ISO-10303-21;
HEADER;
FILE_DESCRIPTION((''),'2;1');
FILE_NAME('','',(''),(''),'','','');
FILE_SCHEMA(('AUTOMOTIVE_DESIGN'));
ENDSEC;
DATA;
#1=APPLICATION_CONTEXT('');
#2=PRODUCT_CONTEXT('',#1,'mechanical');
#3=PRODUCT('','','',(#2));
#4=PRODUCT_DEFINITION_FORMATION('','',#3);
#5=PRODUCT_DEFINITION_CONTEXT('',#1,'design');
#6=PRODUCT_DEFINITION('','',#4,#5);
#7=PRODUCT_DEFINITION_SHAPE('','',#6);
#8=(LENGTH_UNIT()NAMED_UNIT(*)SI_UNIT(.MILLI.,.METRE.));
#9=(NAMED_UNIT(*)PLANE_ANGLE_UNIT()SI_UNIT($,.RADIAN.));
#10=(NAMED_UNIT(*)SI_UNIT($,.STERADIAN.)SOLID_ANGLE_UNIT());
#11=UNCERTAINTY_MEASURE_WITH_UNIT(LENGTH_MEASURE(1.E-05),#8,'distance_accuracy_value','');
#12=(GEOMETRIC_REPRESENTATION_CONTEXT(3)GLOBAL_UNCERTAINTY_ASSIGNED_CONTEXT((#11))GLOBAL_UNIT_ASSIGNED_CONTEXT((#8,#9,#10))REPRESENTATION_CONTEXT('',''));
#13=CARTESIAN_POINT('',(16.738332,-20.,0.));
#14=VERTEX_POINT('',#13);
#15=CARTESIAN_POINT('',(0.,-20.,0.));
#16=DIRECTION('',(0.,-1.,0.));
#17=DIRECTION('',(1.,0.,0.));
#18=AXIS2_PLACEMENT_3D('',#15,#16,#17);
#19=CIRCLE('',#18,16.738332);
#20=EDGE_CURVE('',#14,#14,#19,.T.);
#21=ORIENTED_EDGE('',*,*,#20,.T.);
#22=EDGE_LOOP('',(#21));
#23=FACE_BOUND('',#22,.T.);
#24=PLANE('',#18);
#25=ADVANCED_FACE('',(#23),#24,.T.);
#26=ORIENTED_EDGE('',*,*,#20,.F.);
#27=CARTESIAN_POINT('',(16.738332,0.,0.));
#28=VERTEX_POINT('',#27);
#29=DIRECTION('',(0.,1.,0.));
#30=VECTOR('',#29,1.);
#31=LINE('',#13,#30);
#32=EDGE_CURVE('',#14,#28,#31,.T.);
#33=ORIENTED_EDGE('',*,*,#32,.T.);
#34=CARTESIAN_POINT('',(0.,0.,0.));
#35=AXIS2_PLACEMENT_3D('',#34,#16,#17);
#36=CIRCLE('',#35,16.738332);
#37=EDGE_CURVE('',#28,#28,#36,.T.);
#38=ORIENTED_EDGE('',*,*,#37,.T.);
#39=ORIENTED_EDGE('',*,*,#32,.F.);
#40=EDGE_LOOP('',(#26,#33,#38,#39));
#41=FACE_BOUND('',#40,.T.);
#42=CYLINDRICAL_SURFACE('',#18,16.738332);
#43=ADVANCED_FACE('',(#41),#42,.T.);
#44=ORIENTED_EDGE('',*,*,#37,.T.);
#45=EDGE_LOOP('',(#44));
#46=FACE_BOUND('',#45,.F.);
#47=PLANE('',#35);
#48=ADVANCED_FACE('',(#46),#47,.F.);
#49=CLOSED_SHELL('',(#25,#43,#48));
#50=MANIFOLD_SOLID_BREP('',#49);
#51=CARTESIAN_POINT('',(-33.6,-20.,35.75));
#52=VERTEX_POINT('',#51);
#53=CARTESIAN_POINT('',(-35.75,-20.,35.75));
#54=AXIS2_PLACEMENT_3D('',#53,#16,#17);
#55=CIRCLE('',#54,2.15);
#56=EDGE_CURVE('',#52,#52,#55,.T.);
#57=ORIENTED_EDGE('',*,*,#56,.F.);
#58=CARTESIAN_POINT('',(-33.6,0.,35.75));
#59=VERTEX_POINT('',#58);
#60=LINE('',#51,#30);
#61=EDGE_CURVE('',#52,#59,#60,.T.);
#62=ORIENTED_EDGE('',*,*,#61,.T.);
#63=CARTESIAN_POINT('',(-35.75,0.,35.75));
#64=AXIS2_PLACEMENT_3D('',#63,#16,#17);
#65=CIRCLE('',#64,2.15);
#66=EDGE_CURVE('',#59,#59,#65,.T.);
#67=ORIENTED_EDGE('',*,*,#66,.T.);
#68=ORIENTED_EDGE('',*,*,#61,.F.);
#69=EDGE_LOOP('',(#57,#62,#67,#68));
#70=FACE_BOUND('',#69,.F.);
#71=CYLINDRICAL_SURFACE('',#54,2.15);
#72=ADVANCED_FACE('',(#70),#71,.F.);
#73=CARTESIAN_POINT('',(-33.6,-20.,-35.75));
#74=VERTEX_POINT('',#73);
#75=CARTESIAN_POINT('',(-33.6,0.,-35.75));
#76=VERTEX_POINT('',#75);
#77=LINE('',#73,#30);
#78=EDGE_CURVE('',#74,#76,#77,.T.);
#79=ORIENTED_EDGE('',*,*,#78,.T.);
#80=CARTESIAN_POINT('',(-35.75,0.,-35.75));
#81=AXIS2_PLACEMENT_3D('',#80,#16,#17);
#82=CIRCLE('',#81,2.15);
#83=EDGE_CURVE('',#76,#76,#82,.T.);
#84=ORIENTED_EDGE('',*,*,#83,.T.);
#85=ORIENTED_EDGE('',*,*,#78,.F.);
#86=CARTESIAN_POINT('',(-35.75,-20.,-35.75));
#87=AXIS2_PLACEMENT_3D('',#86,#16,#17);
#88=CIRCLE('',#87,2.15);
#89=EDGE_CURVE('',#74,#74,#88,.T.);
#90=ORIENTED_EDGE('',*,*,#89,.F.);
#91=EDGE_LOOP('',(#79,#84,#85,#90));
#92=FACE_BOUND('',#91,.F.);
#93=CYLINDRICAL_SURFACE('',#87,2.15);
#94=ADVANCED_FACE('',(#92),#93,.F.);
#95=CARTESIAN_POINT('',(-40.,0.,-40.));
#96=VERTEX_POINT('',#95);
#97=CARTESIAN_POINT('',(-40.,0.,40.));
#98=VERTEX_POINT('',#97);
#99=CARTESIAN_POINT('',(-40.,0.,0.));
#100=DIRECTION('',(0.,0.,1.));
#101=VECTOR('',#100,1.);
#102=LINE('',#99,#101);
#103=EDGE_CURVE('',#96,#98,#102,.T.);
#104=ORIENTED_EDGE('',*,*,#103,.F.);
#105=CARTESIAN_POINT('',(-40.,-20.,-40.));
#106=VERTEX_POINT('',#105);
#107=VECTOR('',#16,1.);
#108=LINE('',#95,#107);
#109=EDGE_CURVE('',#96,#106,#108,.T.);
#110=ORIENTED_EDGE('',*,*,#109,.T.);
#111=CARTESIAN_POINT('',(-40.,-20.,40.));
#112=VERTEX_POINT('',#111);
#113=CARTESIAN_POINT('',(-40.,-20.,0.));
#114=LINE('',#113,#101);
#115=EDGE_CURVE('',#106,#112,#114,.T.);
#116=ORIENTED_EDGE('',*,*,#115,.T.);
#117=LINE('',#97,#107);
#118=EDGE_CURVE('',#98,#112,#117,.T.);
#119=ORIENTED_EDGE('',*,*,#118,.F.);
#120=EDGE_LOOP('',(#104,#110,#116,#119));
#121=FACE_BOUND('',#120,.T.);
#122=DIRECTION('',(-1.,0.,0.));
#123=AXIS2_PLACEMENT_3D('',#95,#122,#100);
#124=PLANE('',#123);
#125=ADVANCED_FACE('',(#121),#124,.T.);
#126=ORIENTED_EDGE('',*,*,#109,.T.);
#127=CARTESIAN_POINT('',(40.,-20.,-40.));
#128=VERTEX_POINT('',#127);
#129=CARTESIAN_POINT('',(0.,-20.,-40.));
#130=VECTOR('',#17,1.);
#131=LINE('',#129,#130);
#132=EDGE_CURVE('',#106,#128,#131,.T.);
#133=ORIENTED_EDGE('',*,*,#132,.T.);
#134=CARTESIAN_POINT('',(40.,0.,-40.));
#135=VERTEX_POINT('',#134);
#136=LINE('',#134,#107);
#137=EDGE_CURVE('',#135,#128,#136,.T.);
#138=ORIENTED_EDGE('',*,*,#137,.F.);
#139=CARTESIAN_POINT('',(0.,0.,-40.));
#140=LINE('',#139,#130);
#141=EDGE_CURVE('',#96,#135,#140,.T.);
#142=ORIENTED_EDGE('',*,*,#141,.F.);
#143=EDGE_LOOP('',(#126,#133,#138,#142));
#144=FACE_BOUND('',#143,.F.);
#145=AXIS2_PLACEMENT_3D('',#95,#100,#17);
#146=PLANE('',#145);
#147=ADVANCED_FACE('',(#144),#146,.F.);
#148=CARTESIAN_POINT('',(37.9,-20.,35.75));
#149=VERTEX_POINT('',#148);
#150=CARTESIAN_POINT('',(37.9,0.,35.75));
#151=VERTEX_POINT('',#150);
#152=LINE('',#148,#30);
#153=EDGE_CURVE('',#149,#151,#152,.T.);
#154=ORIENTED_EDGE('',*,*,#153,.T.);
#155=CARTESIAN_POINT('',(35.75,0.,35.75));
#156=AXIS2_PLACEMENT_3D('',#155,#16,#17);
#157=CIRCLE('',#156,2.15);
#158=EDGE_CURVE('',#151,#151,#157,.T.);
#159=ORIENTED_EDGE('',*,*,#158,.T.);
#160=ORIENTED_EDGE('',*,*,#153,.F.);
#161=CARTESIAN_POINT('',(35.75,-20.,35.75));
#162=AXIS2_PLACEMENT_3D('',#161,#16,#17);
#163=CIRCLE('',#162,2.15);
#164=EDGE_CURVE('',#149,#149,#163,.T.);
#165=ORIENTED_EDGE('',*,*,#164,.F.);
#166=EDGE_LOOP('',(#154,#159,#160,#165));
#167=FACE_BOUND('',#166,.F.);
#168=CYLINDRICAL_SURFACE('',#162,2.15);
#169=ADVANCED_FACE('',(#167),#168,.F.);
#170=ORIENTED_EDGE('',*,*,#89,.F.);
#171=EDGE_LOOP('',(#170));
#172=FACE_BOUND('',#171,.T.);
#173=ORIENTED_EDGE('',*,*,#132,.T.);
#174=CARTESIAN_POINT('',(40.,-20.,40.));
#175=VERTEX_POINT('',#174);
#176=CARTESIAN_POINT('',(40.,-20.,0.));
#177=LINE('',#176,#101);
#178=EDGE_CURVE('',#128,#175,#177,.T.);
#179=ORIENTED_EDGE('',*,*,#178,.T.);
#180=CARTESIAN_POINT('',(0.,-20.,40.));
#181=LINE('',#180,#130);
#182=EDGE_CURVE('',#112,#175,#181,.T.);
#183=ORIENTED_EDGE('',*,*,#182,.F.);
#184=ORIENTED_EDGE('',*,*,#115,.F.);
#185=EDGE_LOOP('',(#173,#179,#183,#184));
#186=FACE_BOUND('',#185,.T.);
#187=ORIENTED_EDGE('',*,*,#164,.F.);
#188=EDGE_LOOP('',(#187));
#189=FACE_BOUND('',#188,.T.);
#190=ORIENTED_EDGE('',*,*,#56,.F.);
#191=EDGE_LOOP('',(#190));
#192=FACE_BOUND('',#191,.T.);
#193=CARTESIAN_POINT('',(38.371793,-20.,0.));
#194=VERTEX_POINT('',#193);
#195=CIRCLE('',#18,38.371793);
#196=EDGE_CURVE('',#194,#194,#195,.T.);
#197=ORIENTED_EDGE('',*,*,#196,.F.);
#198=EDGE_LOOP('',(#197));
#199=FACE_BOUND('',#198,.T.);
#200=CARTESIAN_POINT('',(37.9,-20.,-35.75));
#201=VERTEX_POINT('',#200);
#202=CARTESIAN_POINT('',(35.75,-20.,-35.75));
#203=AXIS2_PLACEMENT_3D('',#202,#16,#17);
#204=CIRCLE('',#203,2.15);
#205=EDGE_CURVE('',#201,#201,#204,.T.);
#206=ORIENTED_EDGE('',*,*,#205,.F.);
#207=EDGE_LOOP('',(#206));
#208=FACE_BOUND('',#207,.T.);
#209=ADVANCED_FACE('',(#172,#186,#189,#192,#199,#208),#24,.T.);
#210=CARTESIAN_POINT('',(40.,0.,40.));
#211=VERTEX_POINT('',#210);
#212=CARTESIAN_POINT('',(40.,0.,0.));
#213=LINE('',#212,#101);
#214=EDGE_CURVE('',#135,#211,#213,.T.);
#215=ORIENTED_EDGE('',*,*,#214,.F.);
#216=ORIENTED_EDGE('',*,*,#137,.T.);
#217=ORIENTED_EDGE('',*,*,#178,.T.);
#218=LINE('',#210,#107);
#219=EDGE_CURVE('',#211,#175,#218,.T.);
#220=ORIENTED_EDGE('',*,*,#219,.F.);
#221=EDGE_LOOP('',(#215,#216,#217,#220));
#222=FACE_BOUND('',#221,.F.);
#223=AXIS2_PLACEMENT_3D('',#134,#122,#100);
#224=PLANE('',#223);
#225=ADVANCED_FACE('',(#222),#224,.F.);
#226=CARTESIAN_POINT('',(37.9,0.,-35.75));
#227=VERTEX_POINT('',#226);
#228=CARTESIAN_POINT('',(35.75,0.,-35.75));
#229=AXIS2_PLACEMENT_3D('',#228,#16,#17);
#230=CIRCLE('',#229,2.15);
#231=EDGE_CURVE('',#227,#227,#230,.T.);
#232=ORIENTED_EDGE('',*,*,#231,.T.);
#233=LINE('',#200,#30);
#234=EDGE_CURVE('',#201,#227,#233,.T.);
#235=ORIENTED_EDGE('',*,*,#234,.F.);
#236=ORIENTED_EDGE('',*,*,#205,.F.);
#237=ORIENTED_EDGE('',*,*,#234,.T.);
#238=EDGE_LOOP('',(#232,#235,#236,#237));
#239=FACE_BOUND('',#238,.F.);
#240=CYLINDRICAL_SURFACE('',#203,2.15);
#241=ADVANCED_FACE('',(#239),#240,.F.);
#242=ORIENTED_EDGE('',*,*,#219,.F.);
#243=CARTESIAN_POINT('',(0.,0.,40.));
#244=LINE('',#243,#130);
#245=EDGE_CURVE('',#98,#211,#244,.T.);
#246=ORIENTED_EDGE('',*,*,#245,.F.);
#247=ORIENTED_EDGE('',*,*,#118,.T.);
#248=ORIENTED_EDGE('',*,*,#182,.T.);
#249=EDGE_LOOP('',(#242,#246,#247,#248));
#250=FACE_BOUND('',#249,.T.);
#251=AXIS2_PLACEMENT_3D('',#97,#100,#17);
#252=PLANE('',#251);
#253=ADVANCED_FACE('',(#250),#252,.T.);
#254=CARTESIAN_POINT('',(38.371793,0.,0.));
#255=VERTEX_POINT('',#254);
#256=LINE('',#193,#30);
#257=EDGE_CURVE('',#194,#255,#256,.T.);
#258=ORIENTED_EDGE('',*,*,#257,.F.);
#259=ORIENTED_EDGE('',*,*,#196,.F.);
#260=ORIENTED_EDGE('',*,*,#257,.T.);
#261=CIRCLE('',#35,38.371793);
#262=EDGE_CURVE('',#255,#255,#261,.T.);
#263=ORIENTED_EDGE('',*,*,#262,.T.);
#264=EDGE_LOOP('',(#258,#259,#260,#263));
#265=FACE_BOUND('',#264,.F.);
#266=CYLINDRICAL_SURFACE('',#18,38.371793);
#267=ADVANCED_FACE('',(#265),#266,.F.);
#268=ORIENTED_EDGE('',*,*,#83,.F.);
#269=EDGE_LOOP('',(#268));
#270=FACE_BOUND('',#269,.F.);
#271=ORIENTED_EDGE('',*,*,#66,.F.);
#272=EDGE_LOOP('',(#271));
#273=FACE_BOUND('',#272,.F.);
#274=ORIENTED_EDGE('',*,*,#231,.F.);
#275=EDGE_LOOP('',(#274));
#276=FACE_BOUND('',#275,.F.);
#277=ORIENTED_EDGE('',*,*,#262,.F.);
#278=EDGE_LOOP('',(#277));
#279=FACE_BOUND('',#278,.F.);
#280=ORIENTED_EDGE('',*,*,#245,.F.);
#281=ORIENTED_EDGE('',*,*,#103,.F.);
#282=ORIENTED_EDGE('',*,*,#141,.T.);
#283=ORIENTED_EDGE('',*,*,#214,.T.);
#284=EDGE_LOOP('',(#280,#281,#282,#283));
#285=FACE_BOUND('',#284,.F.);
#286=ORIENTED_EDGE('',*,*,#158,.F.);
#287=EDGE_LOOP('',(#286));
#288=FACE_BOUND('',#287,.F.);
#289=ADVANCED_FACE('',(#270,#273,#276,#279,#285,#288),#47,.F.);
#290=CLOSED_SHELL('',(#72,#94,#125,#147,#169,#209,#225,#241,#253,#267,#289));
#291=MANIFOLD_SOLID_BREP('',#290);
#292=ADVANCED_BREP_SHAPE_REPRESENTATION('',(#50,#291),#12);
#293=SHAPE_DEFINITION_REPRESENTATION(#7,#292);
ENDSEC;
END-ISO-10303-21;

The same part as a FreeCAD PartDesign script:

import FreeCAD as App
import Part
import Sketcher
Q = App.Units.Quantity

doc = App.newDocument("Part")
body = doc.addObject("PartDesign::Body", "Body")
body.AllowCompound = True

sketch1 = body.newObject("Sketcher::SketchObject", "Sketch")
sketch1.AttachmentSupport = (doc.getObject("XZ_Plane"), [""])
sketch1.MapMode = "FlatFace"
sketch1.addGeometry(Part.LineSegment(App.Vector(-40, 40, 0), App.Vector(-40, -40, 0)), False)
sketch1.addGeometry(Part.LineSegment(App.Vector(-40, -40, 0), App.Vector(40, -40, 0)), False)
sketch1.addGeometry(Part.LineSegment(App.Vector(40, -40, 0), App.Vector(40, 40, 0)), False)
sketch1.addGeometry(Part.LineSegment(App.Vector(40, 40, 0), App.Vector(-40, 40, 0)), False)
sketch1.addConstraint(Sketcher.Constraint("Coincident", 0, 2, 1, 1))
sketch1.addConstraint(Sketcher.Constraint("Coincident", 1, 2, 2, 1))
sketch1.addConstraint(Sketcher.Constraint("Coincident", 2, 2, 3, 1))
sketch1.addConstraint(Sketcher.Constraint("Coincident", 3, 2, 0, 1))
sketch1.addConstraint(Sketcher.Constraint("Vertical", 0))
sketch1.addConstraint(Sketcher.Constraint("Horizontal", 1))
sketch1.addConstraint(Sketcher.Constraint("Vertical", 2))
sketch1.addConstraint(Sketcher.Constraint("Horizontal", 3))
sketch1.addConstraint(Sketcher.Constraint("Symmetric", 0, 2, 2, 2, -1, 1))
sketch1.addConstraint(Sketcher.Constraint("Equal", 3, 0))
sketch1.addConstraint(Sketcher.Constraint("DistanceX", 1, 1, 1, 2, Q("80 mm")))
pad1 = body.newObject("PartDesign::Pad", "Pad")
pad1.Profile = sketch1
pad1.Length = 20

sketch2 = body.newObject("Sketcher::SketchObject", "Sketch001")
sketch2.AttachmentSupport = (doc.getObject("XZ_Plane"), [""])
sketch2.MapMode = "FlatFace"
sketch2.AttachmentOffset = App.Placement(App.Vector(0, 0, 20), App.Rotation())
sketch2.addGeometry(Part.Circle(App.Vector(-35.8, 35.8, 0), App.Vector(0, 0, 1), 2.1), False)
sketch2.addGeometry(Part.Circle(App.Vector(-35.8, -35.8, 0), App.Vector(0, 0, 1), 2.1), False)
sketch2.addGeometry(Part.Circle(App.Vector(35.8, 35.8, 0), App.Vector(0, 0, 1), 2.1), False)
sketch2.addGeometry(Part.Circle(App.Vector(35.8, -35.8, 0), App.Vector(0, 0, 1), 2.1), False)
sketch2.addConstraint(Sketcher.Constraint("Equal", 0, 1))
sketch2.addConstraint(Sketcher.Constraint("Equal", 1, 2))
sketch2.addConstraint(Sketcher.Constraint("Equal", 2, 3))
sketch2.addConstraint(Sketcher.Constraint("Symmetric", 1, 3, 2, 3, -1, 1))
sketch2.addConstraint(Sketcher.Constraint("Symmetric", 0, 3, 3, 3, -1, 1))
sketch2.addConstraint(Sketcher.Constraint("Symmetric", 0, 3, 2, 3, -2))
sketch2.addConstraint(Sketcher.Constraint("Diameter", 0, Q("4.3 mm")))
sketch2.addConstraint(Sketcher.Constraint("DistanceY", 1, 3, 0, 3, Q("71.5 mm")))
sketch2.addConstraint(Sketcher.Constraint("DistanceX", 0, 3, 2, 3, Q("71.5 mm")))
pocket1 = body.newObject("PartDesign::Pocket", "Pocket")
pocket1.Profile = sketch2
pocket1.Length = 25

sketch3 = body.newObject("Sketcher::SketchObject", "Sketch002")
sketch3.AttachmentSupport = (doc.getObject("XZ_Plane"), [""])
sketch3.MapMode = "FlatFace"
sketch3.AttachmentOffset = App.Placement(App.Vector(0, 0, 20), App.Rotation())
sketch3.addGeometry(Part.Circle(App.Vector(0, 0, 0), App.Vector(0, 0, 1), 38), False)
sketch3.addGeometry(Part.Circle(App.Vector(0, 0, 0), App.Vector(0, 0, 1), 17), False)
sketch3.addConstraint(Sketcher.Constraint("Coincident", 0, 3, -1, 1))
sketch3.addConstraint(Sketcher.Constraint("Coincident", 1, 3, -1, 1))
sketch3.addConstraint(Sketcher.Constraint("Diameter", 0, Q("76.743586 mm")))
sketch3.addConstraint(Sketcher.Constraint("Diameter", 1, Q("33.476664 mm")))
pocket2 = body.newObject("PartDesign::Pocket", "Pocket001")
pocket2.Profile = sketch3
pocket2.Length = 25

doc.recompute()
